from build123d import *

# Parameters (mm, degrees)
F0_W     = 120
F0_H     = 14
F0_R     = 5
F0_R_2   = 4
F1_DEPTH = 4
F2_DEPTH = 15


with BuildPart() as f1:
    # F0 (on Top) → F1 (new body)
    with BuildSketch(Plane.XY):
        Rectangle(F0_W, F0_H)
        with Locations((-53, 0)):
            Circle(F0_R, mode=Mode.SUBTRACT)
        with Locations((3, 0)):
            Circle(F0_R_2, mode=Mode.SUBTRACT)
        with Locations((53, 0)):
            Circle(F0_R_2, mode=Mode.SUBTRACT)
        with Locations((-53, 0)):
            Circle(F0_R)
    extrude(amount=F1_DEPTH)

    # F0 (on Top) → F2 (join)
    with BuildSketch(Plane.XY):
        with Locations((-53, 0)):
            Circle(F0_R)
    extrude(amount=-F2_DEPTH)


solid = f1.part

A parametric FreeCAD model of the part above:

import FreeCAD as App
import Part
import Sketcher

doc = App.newDocument("Part")
params = doc.addObject("Spreadsheet::Sheet", "Params")
for row, (alias, value) in enumerate([
    ("sketch1_diameter", "8 mm"),
    ("sketch1_width", "120 mm"),
    ("sketch1_height", "14 mm"),
    ("pad1_length", "4 mm"),
    ("sketch2_diameter", "10 mm"),
    ("pad2_length", "15 mm"),
], start=1):
    params.set(f"A{row}", alias)
    params.set(f"B{row}", "=" + value)
    params.setAlias(f"B{row}", alias)

body = doc.addObject("PartDesign::Body", "Body")

# Sketch on XY plane
sketch1 = body.newObject("Sketcher::SketchObject", "Sketch")
sketch1.AttachmentSupport = (doc.getObject("XY_Plane"), [""])
sketch1.MapMode = "FlatFace"
sketch1.addGeometry(Part.LineSegment(App.Vector(-60, 7, 0), App.Vector(-60, -7, 0)), False)
sketch1.addGeometry(Part.LineSegment(App.Vector(-60, -7, 0), App.Vector(60, -7, 0)), False)
sketch1.addGeometry(Part.LineSegment(App.Vector(60, -7, 0), App.Vector(60, 7, 0)), False)
sketch1.addGeometry(Part.LineSegment(App.Vector(60, 7, 0), App.Vector(-60, 7, 0)), False)
sketch1.addGeometry(Part.Circle(App.Vector(3, 0, 0), App.Vector(0, 0, 1), 4), False)
sketch1.addGeometry(Part.Circle(App.Vector(53, 0, 0), App.Vector(0, 0, 1), 4), False)
sketch1.addConstraint(Sketcher.Constraint("Coincident", 0, 2, 1, 1))
sketch1.addConstraint(Sketcher.Constraint("Coincident", 1, 2, 2, 1))
sketch1.addConstraint(Sketcher.Constraint("Coincident", 2, 2, 3, 1))
sketch1.addConstraint(Sketcher.Constraint("Coincident", 3, 2, 0, 1))
sketch1.addConstraint(Sketcher.Constraint("Vertical", 0))
sketch1.addConstraint(Sketcher.Constraint("Horizontal", 1))
sketch1.addConstraint(Sketcher.Constraint("Vertical", 2))
sketch1.addConstraint(Sketcher.Constraint("Horizontal", 3))
sketch1.addConstraint(Sketcher.Constraint("Equal", 4, 5))
sketch1.addConstraint(Sketcher.Constraint("Symmetric", 0, 2, 2, 2, -1, 1))
sketch1.addConstraint(Sketcher.Constraint("PointOnObject", 4, 3, -1))
sketch1.addConstraint(Sketcher.Constraint("PointOnObject", 5, 3, -1))
sketch1.addConstraint(Sketcher.Constraint("Diameter", 4, 8.0))
sketch1.addConstraint(Sketcher.Constraint("DistanceX", 1, 1, 1, 2, 120.0))
sketch1.addConstraint(Sketcher.Constraint("DistanceY", 0, 2, 0, 1, 14.0))
sketch1.addConstraint(Sketcher.Constraint("DistanceX", -1, 1, 4, 3, 3.0))
sketch1.addConstraint(Sketcher.Constraint("DistanceX", -1, 1, 5, 3, 53.0))
sketch1.setExpression("Constraints[12]", "Params.sketch1_diameter")
sketch1.setExpression("Constraints[13]", "Params.sketch1_width")
sketch1.setExpression("Constraints[14]", "Params.sketch1_height")
pad1 = body.newObject("PartDesign::Pad", "Pad")
pad1.Profile = sketch1
pad1.setExpression("Length", "Params.pad1_length")

# Sketch on XY plane
sketch2 = body.newObject("Sketcher::SketchObject", "Sketch001")
sketch2.AttachmentSupport = (doc.getObject("XY_Plane"), [""])
sketch2.MapMode = "FlatFace"
sketch2.addGeometry(Part.Circle(App.Vector(-53, 0, 0), App.Vector(0, 0, 1), 5), False)
sketch2.addConstraint(Sketcher.Constraint("PointOnObject", 0, 3, -1))
sketch2.addConstraint(Sketcher.Constraint("Diameter", 0, 10.0))
sketch2.addConstraint(Sketcher.Constraint("DistanceX", 0, 3, -1, 1, 53.0))
sketch2.setExpression("Constraints[1]", "Params.sketch2_diameter")
pad2 = body.newObject("PartDesign::Pad", "Pad001")
pad2.Profile = sketch2
pad2.setExpression("Length", "Params.pad2_length")
pad2.Reversed = True

doc.recompute()
